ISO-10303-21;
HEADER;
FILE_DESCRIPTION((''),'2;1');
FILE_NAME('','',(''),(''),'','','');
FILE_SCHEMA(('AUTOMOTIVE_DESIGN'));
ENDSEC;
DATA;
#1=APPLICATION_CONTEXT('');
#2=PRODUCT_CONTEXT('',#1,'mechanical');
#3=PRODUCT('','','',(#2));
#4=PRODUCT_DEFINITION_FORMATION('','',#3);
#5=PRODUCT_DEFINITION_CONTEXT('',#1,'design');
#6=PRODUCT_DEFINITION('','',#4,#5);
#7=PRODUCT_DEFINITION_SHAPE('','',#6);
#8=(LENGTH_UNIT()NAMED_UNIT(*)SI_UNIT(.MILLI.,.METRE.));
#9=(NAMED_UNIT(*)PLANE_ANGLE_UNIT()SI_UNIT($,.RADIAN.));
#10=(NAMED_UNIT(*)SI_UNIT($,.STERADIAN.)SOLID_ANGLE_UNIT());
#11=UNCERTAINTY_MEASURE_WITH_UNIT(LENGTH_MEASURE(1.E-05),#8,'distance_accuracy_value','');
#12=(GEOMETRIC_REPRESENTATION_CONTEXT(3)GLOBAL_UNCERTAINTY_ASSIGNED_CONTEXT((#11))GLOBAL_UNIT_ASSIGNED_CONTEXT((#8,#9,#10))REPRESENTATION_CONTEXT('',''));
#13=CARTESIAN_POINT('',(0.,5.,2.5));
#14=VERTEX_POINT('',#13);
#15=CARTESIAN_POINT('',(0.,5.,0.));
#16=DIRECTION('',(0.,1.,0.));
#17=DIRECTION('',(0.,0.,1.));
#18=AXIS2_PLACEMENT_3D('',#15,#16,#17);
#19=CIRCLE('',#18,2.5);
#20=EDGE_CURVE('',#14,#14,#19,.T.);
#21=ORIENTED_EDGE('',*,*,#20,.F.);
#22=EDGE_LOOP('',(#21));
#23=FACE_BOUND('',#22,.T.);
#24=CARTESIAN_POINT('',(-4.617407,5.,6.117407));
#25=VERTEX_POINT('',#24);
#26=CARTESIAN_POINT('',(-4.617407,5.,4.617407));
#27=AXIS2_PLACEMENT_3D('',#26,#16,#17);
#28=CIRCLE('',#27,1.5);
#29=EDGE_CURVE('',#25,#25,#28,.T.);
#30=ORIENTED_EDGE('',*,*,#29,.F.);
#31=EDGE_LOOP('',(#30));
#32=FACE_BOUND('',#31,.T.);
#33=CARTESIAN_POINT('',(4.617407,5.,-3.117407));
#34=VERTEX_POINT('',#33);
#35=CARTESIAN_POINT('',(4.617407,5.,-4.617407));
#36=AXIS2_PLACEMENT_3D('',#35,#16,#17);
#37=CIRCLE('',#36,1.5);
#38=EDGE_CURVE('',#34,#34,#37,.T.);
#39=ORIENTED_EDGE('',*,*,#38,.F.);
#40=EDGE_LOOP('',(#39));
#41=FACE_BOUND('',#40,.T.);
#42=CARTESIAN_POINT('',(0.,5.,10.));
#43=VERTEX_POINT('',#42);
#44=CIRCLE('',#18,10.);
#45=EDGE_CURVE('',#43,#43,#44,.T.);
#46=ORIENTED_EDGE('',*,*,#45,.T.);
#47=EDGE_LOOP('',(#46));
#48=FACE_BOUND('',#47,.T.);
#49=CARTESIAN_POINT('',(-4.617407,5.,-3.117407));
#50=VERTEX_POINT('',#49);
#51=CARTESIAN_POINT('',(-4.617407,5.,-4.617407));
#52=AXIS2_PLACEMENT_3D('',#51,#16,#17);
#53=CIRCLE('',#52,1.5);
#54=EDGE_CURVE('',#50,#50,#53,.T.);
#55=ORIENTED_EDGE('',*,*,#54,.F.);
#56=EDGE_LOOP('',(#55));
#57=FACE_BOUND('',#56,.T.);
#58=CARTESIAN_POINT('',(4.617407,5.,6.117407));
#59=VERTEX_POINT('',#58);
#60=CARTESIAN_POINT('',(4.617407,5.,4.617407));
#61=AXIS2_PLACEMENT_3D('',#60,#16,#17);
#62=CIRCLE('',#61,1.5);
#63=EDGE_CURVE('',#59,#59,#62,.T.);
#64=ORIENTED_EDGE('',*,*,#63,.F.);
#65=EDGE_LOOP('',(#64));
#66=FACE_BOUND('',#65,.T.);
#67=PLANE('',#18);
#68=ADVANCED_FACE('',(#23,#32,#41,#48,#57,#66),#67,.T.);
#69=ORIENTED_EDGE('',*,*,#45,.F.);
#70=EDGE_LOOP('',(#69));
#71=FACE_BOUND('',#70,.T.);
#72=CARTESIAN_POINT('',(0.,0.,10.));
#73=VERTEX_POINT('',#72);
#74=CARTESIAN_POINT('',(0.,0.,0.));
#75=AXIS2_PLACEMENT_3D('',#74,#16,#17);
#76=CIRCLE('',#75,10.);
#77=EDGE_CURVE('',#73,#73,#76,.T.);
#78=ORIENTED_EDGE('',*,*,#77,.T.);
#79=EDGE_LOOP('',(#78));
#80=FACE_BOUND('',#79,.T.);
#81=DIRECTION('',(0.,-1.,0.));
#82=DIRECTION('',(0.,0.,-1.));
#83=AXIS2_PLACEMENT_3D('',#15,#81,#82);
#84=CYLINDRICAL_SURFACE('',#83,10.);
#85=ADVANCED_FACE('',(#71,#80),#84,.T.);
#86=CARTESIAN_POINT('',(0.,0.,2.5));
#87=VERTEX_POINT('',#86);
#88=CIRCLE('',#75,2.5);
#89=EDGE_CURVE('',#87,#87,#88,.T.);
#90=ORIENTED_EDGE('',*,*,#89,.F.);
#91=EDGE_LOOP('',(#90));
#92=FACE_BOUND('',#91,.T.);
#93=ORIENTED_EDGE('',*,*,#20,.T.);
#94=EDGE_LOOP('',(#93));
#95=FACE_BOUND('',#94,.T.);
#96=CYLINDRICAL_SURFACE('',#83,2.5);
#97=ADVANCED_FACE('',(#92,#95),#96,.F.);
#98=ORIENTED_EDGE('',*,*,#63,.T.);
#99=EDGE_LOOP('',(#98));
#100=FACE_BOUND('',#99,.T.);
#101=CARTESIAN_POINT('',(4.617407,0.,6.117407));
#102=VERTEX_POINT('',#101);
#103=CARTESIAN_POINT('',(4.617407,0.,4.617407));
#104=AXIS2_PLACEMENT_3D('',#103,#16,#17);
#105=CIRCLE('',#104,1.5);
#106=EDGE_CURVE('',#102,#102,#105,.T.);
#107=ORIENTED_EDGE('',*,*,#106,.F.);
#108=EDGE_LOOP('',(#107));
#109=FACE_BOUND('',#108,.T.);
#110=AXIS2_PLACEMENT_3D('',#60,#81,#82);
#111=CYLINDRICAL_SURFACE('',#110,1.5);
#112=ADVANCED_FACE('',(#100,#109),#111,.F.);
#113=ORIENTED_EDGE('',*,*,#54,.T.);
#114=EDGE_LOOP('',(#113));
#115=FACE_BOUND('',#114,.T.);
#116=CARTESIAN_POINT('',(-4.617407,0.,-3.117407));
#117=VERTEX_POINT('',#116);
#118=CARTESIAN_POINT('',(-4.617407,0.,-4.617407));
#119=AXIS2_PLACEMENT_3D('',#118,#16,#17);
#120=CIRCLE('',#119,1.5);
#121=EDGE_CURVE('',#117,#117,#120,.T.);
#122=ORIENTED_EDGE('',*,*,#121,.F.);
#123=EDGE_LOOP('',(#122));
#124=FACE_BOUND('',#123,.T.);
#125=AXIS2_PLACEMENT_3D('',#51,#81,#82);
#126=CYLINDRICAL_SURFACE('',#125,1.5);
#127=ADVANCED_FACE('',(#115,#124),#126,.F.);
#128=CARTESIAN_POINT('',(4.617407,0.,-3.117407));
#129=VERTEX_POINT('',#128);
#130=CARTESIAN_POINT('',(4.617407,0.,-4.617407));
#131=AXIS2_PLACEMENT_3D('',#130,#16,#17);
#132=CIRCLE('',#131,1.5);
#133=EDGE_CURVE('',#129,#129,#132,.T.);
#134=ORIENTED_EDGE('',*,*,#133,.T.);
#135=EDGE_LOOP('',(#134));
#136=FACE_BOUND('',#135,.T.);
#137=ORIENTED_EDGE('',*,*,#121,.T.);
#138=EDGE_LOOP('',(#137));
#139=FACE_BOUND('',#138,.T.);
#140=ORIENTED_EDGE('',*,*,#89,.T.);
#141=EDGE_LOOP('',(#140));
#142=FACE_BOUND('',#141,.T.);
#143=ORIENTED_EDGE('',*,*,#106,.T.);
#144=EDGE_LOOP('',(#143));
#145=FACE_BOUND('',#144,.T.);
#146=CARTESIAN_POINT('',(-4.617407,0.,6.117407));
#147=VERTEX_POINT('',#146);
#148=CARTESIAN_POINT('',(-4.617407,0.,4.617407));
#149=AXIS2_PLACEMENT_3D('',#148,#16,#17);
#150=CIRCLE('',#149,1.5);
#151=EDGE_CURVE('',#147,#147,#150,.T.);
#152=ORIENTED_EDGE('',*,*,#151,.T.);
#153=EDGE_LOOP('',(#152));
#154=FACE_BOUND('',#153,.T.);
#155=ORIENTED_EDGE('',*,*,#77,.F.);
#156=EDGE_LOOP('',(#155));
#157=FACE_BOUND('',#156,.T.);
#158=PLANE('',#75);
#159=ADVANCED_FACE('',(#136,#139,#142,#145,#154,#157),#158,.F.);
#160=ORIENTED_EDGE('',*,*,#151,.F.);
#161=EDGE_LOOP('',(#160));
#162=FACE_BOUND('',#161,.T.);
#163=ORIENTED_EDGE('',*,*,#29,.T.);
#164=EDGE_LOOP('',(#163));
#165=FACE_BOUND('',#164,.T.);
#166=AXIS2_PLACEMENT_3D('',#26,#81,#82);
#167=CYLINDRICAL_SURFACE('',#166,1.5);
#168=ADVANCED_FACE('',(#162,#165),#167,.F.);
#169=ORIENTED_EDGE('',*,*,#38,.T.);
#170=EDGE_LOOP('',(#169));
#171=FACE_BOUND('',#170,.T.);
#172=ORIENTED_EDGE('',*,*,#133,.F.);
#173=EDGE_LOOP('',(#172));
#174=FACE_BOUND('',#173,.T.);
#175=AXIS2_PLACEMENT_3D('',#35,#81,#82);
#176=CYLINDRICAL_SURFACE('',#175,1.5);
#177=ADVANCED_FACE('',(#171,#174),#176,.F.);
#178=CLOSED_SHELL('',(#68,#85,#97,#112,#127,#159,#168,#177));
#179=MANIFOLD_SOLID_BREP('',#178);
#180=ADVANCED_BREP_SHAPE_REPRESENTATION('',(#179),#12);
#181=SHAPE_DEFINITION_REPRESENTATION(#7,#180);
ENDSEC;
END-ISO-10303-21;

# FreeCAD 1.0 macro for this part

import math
import FreeCAD as App
import Part
import Sketcher
Q = App.Units.Quantity

doc = App.newDocument("Part")
body = doc.addObject("PartDesign::Body", "Body")

# Sketch on XZ plane
sketch1 = body.newObject("Sketcher::SketchObject", "Sketch")
sketch1.AttachmentSupport = (doc.getObject("XZ_Plane"), [""])
sketch1.MapMode = "FlatFace"
sketch1.addGeometry([
    Part.ArcOfCircle(Part.Circle(App.Vector(0, 0, 0), App.Vector(0, 0, 1), 10), math.radians(-90), math.radians(-45)),  # 0
    Part.ArcOfCircle(Part.Circle(App.Vector(0, 0, 0), App.Vector(0, 0, 1), 10), math.radians(0), math.radians(270)),  # 1
    Part.ArcOfCircle(Part.Circle(App.Vector(0, 0, 0), App.Vector(0, 0, 1), 10), math.radians(-45), math.radians(0)),  # 2
    Part.Circle(App.Vector(-4.6, 4.6, 0), App.Vector(0, 0, 1), 1.5),  # 3
    Part.ArcOfCircle(Part.Circle(App.Vector(0, 0, 0), App.Vector(0, 0, 1), 2.5), math.radians(-90), math.radians(-45)),  # 4
    Part.ArcOfCircle(Part.Circle(App.Vector(0, 0, 0), App.Vector(0, 0, 1), 2.5), math.radians(-45), math.radians(0)),  # 5
    Part.ArcOfCircle(Part.Circle(App.Vector(0, 0, 0), App.Vector(0, 0, 1), 2.5), math.radians(0), math.radians(270)),  # 6
    Part.Circle(App.Vector(4.6, 4.6, 0), App.Vector(0, 0, 1), 1.5),  # 7
    Part.Circle(App.Vector(-4.6, -4.6, 0), App.Vector(0, 0, 1), 1.5),  # 8
    Part.ArcOfCircle(Part.Circle(App.Vector(4.6, -4.6, 0), App.Vector(0, 0, 1), 1.5), math.radians(135), math.radians(315)),  # 9
    Part.ArcOfCircle(Part.Circle(App.Vector(4.6, -4.6, 0), App.Vector(0, 0, 1), 1.5), math.radians(-45), math.radians(0)),  # 10
    Part.ArcOfCircle(Part.Circle(App.Vector(4.6, -4.6, 0), App.Vector(0, 0, 1), 1.5), math.radians(0), math.radians(135)),  # 11
], False)
sketch1.addConstraint([
    Sketcher.Constraint("Tangent", 0, 1, 1, 2),
    Sketcher.Constraint("Tangent", 1, 1, 2, 2),
    Sketcher.Constraint("Tangent", 2, 1, 0, 2),
    Sketcher.Constraint("Tangent", 4, 2, 5, 1),
    Sketcher.Constraint("Tangent", 5, 2, 6, 1),
    Sketcher.Constraint("Tangent", 6, 2, 4, 1),
    Sketcher.Constraint("Tangent", 9, 2, 10, 1),
    Sketcher.Constraint("Tangent", 10, 2, 11, 1),
    Sketcher.Constraint("Tangent", 11, 2, 9, 1),
    Sketcher.Constraint("Coincident", 0, 3, -1, 1),
    Sketcher.Constraint("Coincident", 4, 3, -1, 1),
    Sketcher.Constraint("Equal", 3, 7),
    Sketcher.Constraint("Equal", 7, 8),
    Sketcher.Constraint("Equal", 8, 9),
    Sketcher.Constraint("Symmetric", 7, 3, 8, 3, -1, 1),
    Sketcher.Constraint("Symmetric", 3, 3, 9, 3, -1, 1),
    Sketcher.Constraint("Symmetric", 3, 3, 7, 3, -2),
    Sketcher.Constraint("PointOnObject", 0, 1, -2),
    Sketcher.Constraint("PointOnObject", 1, 1, -1),
    Sketcher.Constraint("PointOnObject", 5, 2, -1),
    Sketcher.Constraint("PointOnObject", 6, 2, -2),
    Sketcher.Constraint("Horizontal", 11, 3, 10, 2),
    Sketcher.Constraint("Diameter", 3, Q("3 mm")),
    Sketcher.Constraint("Radius", 0, Q("10 mm")),
    Sketcher.Constraint("Radius", 4, Q("2.5 mm")),
    Sketcher.Constraint("DistanceX", 9, 2, 2, 1, Q("1.393 mm")),
    Sketcher.Constraint("DistanceY", 2, 1, 9, 2, Q("1.393 mm")),
    Sketcher.Constraint("DistanceX", 4, 2, 9, 2, Q("3.9103 mm")),
    Sketcher.Constraint("DistanceX", 10, 3, 2, 1, Q("2.453661 mm")),
    Sketcher.Constraint("DistanceX", 11, 2, 9, 3, Q("1.06066 mm")),
    Sketcher.Constraint("DistanceX", 3, 3, -1, 1, Q("4.617407 mm")),
])
pad1 = body.newObject("PartDesign::Pad", "Pad")
pad1.Profile = sketch1
pad1.Length = 5
pad1.Reversed = True

doc.recompute()
